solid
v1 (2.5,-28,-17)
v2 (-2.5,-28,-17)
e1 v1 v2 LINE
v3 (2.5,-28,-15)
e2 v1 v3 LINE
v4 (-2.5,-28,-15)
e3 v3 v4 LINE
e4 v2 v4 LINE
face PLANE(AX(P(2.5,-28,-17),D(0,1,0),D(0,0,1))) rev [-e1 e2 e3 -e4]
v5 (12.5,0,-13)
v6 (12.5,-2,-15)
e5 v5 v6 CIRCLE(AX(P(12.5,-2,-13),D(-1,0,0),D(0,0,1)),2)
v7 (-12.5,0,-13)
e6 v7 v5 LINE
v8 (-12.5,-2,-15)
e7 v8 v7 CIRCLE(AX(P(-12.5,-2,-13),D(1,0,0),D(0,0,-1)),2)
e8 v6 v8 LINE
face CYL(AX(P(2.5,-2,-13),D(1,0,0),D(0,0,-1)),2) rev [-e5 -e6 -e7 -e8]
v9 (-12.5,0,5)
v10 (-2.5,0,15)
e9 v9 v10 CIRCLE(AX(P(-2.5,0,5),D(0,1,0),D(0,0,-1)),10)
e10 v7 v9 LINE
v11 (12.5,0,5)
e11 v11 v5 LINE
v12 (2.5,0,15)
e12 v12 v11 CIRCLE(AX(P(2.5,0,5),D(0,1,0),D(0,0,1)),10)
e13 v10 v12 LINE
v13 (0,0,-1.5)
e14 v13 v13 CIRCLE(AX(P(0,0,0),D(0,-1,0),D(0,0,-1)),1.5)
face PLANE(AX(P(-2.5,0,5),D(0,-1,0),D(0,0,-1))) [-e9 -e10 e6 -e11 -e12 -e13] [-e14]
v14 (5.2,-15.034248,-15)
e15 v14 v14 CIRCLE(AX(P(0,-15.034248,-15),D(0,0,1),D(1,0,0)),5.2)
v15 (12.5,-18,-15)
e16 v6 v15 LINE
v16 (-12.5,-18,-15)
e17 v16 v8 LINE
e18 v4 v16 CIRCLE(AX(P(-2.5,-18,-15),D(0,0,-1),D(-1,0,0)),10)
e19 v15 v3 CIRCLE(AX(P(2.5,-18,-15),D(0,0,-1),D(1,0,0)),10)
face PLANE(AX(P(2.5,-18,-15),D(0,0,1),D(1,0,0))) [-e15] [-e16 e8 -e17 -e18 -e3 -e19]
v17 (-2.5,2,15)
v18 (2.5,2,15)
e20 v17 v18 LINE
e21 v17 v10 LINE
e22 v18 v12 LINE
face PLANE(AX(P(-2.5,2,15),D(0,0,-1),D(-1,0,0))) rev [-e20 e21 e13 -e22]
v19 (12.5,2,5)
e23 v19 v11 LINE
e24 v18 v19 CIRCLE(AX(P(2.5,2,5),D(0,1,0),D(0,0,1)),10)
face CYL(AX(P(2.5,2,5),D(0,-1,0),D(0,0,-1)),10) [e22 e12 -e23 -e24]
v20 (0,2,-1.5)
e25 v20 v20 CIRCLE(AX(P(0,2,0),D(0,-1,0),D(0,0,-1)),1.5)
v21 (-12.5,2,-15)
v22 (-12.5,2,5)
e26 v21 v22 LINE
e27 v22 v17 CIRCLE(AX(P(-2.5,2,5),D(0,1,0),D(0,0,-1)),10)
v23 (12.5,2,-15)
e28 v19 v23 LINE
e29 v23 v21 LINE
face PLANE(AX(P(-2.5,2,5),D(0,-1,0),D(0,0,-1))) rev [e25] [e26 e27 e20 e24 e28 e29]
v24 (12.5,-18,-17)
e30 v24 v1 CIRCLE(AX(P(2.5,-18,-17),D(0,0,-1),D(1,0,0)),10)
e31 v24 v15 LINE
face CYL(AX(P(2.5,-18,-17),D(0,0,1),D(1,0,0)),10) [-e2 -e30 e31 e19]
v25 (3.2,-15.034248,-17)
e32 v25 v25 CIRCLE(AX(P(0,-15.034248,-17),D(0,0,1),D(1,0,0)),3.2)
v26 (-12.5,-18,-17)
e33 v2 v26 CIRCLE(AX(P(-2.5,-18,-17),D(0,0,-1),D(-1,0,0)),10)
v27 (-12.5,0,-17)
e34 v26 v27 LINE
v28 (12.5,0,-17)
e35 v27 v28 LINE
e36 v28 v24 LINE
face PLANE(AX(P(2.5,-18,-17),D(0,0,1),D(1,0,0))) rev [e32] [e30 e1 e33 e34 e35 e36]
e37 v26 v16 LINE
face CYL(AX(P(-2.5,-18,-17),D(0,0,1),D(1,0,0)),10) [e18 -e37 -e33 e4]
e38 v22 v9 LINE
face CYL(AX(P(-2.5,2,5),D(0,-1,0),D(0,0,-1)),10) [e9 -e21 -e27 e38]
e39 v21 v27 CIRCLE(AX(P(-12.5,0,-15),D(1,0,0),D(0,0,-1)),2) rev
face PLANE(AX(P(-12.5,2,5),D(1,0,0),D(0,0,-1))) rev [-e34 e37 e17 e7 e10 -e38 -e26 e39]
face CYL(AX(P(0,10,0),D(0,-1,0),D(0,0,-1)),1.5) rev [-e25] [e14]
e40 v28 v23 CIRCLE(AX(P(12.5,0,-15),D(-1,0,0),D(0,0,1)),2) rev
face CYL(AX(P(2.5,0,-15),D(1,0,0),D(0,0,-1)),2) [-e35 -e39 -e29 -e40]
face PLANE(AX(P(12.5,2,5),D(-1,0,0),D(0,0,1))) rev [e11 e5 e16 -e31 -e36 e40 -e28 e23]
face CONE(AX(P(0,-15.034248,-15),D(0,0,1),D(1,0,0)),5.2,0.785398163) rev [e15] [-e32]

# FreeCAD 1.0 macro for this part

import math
import FreeCAD as App
import Part
import Sketcher
from FreeCAD import Vector
Q = App.Units.Quantity


def edges_at(feature, points):
    """Names of the edges that pass closest to the given points."""
    edges = feature.Shape.Edges
    near = lambda p: min(range(len(edges)), key=lambda i: edges[i].distToShape(Part.Vertex(*p))[0])
    return sorted({f"Edge{near(p) + 1}" for p in points})

doc = App.newDocument("Part")
body = doc.addObject("PartDesign::Body", "Body")

sketch1 = doc.addObject("Sketcher::SketchObject", "Sketch")
body.addObject(sketch1)
sketch1.AttachmentSupport = (doc.XZ_Plane, [""])
sketch1.MapMode = "FlatFace"
sketch1.addGeometry([
    Part.LineSegment(Vector(-2, 15, 0), Vector(2, 15, 0)),
    Part.ArcOfCircle(Part.Circle(Vector(2, 5, 0), Vector(0, 0, 1), 10), math.radians(0), math.radians(90)),
    Part.LineSegment(Vector(12, 5, 0), Vector(12, -15, 0)),
    Part.LineSegment(Vector(12, -15, 0), Vector(-12, -15, 0)),
    Part.LineSegment(Vector(-12, -15, 0), Vector(-12, 5, 0)),
    Part.ArcOfCircle(Part.Circle(Vector(-2, 5, 0), Vector(0, 0, 1), 10), math.radians(90), math.radians(180)),
], False)
sketch1.addConstraint([
    Sketcher.Constraint("Tangent", 0, 2, 1, 2),
    Sketcher.Constraint("Tangent", 1, 1, 2, 1),
    Sketcher.Constraint("Coincident", 2, 2, 3, 1),
    Sketcher.Constraint("Coincident", 3, 2, 4, 1),
    Sketcher.Constraint("Tangent", 4, 2, 5, 2),
    Sketcher.Constraint("Tangent", 5, 1, 0, 1),
    Sketcher.Constraint("Horizontal", 0),
    Sketcher.Constraint("Vertical", 2),
    Sketcher.Constraint("Horizontal", 3),
    Sketcher.Constraint("Vertical", 4),
    Sketcher.Constraint("Equal", 1, 5),
    Sketcher.Constraint("Radius", 1, Q("10 mm")),
    Sketcher.Constraint("DistanceX", 0, 1, 0, 2, Q("5 mm")),
    Sketcher.Constraint("DistanceY", 2, 2, 2, 1, Q("20 mm")),
    Sketcher.Constraint("DistanceY", -1, 1, 1, 3, Q("5 mm")),
    Sketcher.Constraint("DistanceX", -1, 1, 1, 3, Q("2.5 mm")),
])
pad1 = doc.addObject("PartDesign::Pad", "Pad")
body.addObject(pad1)
pad1.Profile = sketch1
pad1.Length = 2
pad1.Reversed = True

sketch2 = doc.addObject("Sketcher::SketchObject", "Sketch001")
body.addObject(sketch2)
sketch2.AttachmentSupport = (doc.XY_Plane, [""])
sketch2.MapMode = "FlatFace"
sketch2.AttachmentOffset = App.Placement(Vector(0, 0, -15), App.Rotation())
sketch2.addGeometry([
    Part.LineSegment(Vector(2, -28, 0), Vector(-2, -28, 0)),
    Part.ArcOfCircle(Part.Circle(Vector(-2, -18, 0), Vector(0, 0, 1), 10), math.radians(180), math.radians(270)),
    Part.LineSegment(Vector(-12, -18, 0), Vector(-12, 2, 0)),
    Part.LineSegment(Vector(-12, 2, 0), Vector(12, 2, 0)),
    Part.LineSegment(Vector(12, 2, 0), Vector(12, -18, 0)),
    Part.ArcOfCircle(Part.Circle(Vector(2, -18, 0), Vector(0, 0, 1), 10), math.radians(-90), math.radians(0)),
], False)
sketch2.addConstraint([
    Sketcher.Constraint("Tangent", 0, 2, 1, 2),
    Sketcher.Constraint("Tangent", 1, 1, 2, 1),
    Sketcher.Constraint("Coincident", 2, 2, 3, 1),
    Sketcher.Constraint("Coincident", 3, 2, 4, 1),
    Sketcher.Constraint("Tangent", 4, 2, 5, 2),
    Sketcher.Constraint("Tangent", 5, 1, 0, 1),
    Sketcher.Constraint("Horizontal", 0),
    Sketcher.Constraint("Vertical", 2),
    Sketcher.Constraint("Horizontal", 3),
    Sketcher.Constraint("Vertical", 4),
    Sketcher.Constraint("Equal", 1, 5),
    Sketcher.Constraint("Radius", 1, Q("10 mm")),
    Sketcher.Constraint("DistanceX", 0, 2, 0, 1, Q("5 mm")),
    Sketcher.Constraint("DistanceY", 2, 1, 2, 2, Q("20 mm")),
    Sketcher.Constraint("DistanceY", 1, 3, -1, 1, Q("18 mm")),
    Sketcher.Constraint("DistanceX", 1, 3, -1, 1, Q("2.5 mm")),
])
pad2 = doc.addObject("PartDesign::Pad", "Pad001")
body.addObject(pad2)
pad2.Profile = sketch2
pad2.Length = 2
pad2.Reversed = True
doc.recompute()

fillet = doc.addObject("PartDesign::Fillet", "Fillet")
body.addObject(fillet)
fillet.Base = (pad2, edges_at(pad2, [(0, 0, -15)]))
fillet.Radius = 2
doc.recompute()

fillet2 = doc.addObject("PartDesign::Fillet", "Fillet001")
body.addObject(fillet2)
fillet2.Base = (fillet, edges_at(fillet, [(0, 2, -17)]))
fillet2.Radius = 2

sketch3 = doc.addObject("Sketcher::SketchObject", "Sketch002")
body.addObject(sketch3)
sketch3.AttachmentSupport = (doc.YZ_Plane, [""])
sketch3.MapMode = "FlatFace"
sketch3.addGeometry([
    Part.LineSegment(Vector(-15.03, -17, 0), Vector(-15.03, -15, 0)),
    Part.LineSegment(Vector(-15.03, -15, 0), Vector(-20.23, -15, 0)),
    Part.LineSegment(Vector(-20.23, -15, 0), Vector(-17.78, -17.45, 0)),
    Part.LineSegment(Vector(-17.78, -17.45, 0), Vector(-17.78, -17, 0)),
    Part.LineSegment(Vector(-17.78, -17, 0), Vector(-15.03, -17, 0)),
], False)
sketch3.addGeometry(Part.LineSegment(Vector(-15.03, -15, 0), Vector(-15.03, -17.45, 0)), True)
sketch3.addConstraint([
    Sketcher.Constraint("Coincident", 0, 2, 1, 1),
    Sketcher.Constraint("Coincident", 1, 2, 2, 1),
    Sketcher.Constraint("Coincident", 2, 2, 3, 1),
    Sketcher.Constraint("Coincident", 3, 2, 4, 1),
    Sketcher.Constraint("Coincident", 4, 2, 0, 1),
    Sketcher.Constraint("Vertical", 0),
    Sketcher.Constraint("Horizontal", 1),
    Sketcher.Constraint("Vertical", 3),
    Sketcher.Constraint("Horizontal", 4),
    Sketcher.Constraint("Vertical", 5),
    Sketcher.Constraint("Coincident", 5, 1, 0, 2),
    Sketcher.Constraint("Horizontal", 2, 2, 5, 2),
    Sketcher.Constraint("DistanceY", 0, 1, 0, 2, Q("2 mm")),
    Sketcher.Constraint("Angle", 2, Q("-45 deg")),
    Sketcher.Constraint("DistanceX", 1, 2, 1, 1, Q("5.2 mm")),
    Sketcher.Constraint("DistanceY", 0, 2, -1, 1, Q("15 mm")),
    Sketcher.Constraint("DistanceX", 4, 1, 4, 2, Q("2.75 mm")),
    Sketcher.Constraint("DistanceX", 0, 2, -1, 1, Q("15.034248 mm")),
])
groove = doc.addObject("PartDesign::Groove", "Groove")
body.addObject(groove)
groove.Profile = sketch3
groove.ReferenceAxis = (sketch3, ["Axis0"])
groove.Angle = 360

sketch4 = doc.addObject("Sketcher::SketchObject", "Sketch003")
body.addObject(sketch4)
sketch4.AttachmentSupport = (doc.XZ_Plane, [""])
sketch4.MapMode = "FlatFace"
sketch4.addGeometry(Part.Circle(Vector(0, 0, 0), Vector(0, 0, 1), 1.5), False)
sketch4.addConstraint([
    Sketcher.Constraint("Coincident", 0, 3, -1, 1),
    Sketcher.Constraint("Diameter", 0, Q("3 mm")),
])
pocket1 = doc.addObject("PartDesign::Pocket", "Pocket")
body.addObject(pocket1)
pocket1.Profile = sketch4
pocket1.Length = 10

doc.recompute()
